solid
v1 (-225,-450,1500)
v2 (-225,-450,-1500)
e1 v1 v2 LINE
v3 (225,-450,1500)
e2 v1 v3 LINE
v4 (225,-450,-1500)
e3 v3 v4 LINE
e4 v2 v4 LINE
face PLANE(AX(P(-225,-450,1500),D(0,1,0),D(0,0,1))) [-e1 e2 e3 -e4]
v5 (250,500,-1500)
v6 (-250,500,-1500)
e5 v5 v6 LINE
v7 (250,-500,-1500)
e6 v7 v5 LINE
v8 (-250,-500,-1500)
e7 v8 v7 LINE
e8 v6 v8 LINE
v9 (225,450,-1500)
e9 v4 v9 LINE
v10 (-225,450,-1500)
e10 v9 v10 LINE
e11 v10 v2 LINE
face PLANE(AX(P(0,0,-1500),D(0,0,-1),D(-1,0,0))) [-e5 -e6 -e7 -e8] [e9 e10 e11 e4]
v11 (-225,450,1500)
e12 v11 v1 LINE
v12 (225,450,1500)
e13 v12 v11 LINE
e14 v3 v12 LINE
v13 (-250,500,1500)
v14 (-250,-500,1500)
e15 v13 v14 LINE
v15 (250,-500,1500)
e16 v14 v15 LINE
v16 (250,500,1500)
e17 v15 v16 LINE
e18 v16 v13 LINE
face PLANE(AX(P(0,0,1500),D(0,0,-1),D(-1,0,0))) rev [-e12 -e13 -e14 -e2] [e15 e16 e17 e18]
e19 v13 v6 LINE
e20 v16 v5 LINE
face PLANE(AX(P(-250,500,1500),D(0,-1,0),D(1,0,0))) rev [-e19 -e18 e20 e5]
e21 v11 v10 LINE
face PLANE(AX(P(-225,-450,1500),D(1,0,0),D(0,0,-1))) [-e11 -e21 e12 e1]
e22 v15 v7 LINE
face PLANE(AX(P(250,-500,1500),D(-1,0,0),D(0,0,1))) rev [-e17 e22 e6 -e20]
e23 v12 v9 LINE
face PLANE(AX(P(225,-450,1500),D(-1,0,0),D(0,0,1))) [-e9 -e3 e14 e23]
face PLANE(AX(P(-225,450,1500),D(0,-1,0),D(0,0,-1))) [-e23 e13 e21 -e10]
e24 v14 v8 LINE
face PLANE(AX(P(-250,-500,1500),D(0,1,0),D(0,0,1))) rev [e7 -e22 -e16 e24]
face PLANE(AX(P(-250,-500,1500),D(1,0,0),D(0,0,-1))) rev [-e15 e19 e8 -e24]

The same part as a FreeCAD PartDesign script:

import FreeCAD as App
import Part
import Sketcher
Q = App.Units.Quantity

doc = App.newDocument("Part")
body = doc.addObject("PartDesign::Body", "Body")

# Sketch on XY plane
sketch1 = body.newObject("Sketcher::SketchObject", "Sketch")
sketch1.AttachmentSupport = (doc.getObject("XY_Plane"), [""])
sketch1.MapMode = "FlatFace"
sketch1.addGeometry(Part.LineSegment(App.Vector(-250, 500, 0), App.Vector(-250, -500, 0)), False)
sketch1.addGeometry(Part.LineSegment(App.Vector(-250, -500, 0), App.Vector(250, -500, 0)), False)
sketch1.addGeometry(Part.LineSegment(App.Vector(250, -500, 0), App.Vector(250, 500, 0)), False)
sketch1.addGeometry(Part.LineSegment(App.Vector(250, 500, 0), App.Vector(-250, 500, 0)), False)
sketch1.addGeometry(Part.LineSegment(App.Vector(225, -450, 0), App.Vector(-225, -450, 0)), False)
sketch1.addGeometry(Part.LineSegment(App.Vector(-225, -450, 0), App.Vector(-225, 450, 0)), False)
sketch1.addGeometry(Part.LineSegment(App.Vector(-225, 450, 0), App.Vector(225, 450, 0)), False)
sketch1.addGeometry(Part.LineSegment(App.Vector(225, 450, 0), App.Vector(225, -450, 0)), False)
sketch1.addConstraint(Sketcher.Constraint("Coincident", 0, 2, 1, 1))
sketch1.addConstraint(Sketcher.Constraint("Coincident", 1, 2, 2, 1))
sketch1.addConstraint(Sketcher.Constraint("Coincident", 2, 2, 3, 1))
sketch1.addConstraint(Sketcher.Constraint("Coincident", 3, 2, 0, 1))
sketch1.addConstraint(Sketcher.Constraint("Coincident", 4, 2, 5, 1))
sketch1.addConstraint(Sketcher.Constraint("Coincident", 5, 2, 6, 1))
sketch1.addConstraint(Sketcher.Constraint("Coincident", 6, 2, 7, 1))
sketch1.addConstraint(Sketcher.Constraint("Coincident", 7, 2, 4, 1))
sketch1.addConstraint(Sketcher.Constraint("Vertical", 0))
sketch1.addConstraint(Sketcher.Constraint("Horizontal", 1))
sketch1.addConstraint(Sketcher.Constraint("Vertical", 2))
sketch1.addConstraint(Sketcher.Constraint("Horizontal", 3))
sketch1.addConstraint(Sketcher.Constraint("Horizontal", 4))
sketch1.addConstraint(Sketcher.Constraint("Vertical", 5))
sketch1.addConstraint(Sketcher.Constraint("Horizontal", 6))
sketch1.addConstraint(Sketcher.Constraint("Vertical", 7))
sketch1.addConstraint(Sketcher.Constraint("Symmetric", 0, 2, 2, 2, -1, 1))
sketch1.addConstraint(Sketcher.Constraint("Symmetric", 4, 2, 6, 2, -1, 1))
sketch1.addConstraint(Sketcher.Constraint("DistanceX", 1, 1, 1, 2, Q("500 mm")))
sketch1.addConstraint(Sketcher.Constraint("DistanceX", 4, 2, 4, 1, Q("450 mm")))
sketch1.addConstraint(Sketcher.Constraint("DistanceY", 0, 2, 0, 1, Q("1000 mm")))
sketch1.addConstraint(Sketcher.Constraint("DistanceY", 5, 1, 5, 2, Q("900 mm")))
pad1 = body.newObject("PartDesign::Pad", "Pad")
pad1.Profile = sketch1
pad1.Length = 3000
pad1.Midplane = True

doc.recompute()
